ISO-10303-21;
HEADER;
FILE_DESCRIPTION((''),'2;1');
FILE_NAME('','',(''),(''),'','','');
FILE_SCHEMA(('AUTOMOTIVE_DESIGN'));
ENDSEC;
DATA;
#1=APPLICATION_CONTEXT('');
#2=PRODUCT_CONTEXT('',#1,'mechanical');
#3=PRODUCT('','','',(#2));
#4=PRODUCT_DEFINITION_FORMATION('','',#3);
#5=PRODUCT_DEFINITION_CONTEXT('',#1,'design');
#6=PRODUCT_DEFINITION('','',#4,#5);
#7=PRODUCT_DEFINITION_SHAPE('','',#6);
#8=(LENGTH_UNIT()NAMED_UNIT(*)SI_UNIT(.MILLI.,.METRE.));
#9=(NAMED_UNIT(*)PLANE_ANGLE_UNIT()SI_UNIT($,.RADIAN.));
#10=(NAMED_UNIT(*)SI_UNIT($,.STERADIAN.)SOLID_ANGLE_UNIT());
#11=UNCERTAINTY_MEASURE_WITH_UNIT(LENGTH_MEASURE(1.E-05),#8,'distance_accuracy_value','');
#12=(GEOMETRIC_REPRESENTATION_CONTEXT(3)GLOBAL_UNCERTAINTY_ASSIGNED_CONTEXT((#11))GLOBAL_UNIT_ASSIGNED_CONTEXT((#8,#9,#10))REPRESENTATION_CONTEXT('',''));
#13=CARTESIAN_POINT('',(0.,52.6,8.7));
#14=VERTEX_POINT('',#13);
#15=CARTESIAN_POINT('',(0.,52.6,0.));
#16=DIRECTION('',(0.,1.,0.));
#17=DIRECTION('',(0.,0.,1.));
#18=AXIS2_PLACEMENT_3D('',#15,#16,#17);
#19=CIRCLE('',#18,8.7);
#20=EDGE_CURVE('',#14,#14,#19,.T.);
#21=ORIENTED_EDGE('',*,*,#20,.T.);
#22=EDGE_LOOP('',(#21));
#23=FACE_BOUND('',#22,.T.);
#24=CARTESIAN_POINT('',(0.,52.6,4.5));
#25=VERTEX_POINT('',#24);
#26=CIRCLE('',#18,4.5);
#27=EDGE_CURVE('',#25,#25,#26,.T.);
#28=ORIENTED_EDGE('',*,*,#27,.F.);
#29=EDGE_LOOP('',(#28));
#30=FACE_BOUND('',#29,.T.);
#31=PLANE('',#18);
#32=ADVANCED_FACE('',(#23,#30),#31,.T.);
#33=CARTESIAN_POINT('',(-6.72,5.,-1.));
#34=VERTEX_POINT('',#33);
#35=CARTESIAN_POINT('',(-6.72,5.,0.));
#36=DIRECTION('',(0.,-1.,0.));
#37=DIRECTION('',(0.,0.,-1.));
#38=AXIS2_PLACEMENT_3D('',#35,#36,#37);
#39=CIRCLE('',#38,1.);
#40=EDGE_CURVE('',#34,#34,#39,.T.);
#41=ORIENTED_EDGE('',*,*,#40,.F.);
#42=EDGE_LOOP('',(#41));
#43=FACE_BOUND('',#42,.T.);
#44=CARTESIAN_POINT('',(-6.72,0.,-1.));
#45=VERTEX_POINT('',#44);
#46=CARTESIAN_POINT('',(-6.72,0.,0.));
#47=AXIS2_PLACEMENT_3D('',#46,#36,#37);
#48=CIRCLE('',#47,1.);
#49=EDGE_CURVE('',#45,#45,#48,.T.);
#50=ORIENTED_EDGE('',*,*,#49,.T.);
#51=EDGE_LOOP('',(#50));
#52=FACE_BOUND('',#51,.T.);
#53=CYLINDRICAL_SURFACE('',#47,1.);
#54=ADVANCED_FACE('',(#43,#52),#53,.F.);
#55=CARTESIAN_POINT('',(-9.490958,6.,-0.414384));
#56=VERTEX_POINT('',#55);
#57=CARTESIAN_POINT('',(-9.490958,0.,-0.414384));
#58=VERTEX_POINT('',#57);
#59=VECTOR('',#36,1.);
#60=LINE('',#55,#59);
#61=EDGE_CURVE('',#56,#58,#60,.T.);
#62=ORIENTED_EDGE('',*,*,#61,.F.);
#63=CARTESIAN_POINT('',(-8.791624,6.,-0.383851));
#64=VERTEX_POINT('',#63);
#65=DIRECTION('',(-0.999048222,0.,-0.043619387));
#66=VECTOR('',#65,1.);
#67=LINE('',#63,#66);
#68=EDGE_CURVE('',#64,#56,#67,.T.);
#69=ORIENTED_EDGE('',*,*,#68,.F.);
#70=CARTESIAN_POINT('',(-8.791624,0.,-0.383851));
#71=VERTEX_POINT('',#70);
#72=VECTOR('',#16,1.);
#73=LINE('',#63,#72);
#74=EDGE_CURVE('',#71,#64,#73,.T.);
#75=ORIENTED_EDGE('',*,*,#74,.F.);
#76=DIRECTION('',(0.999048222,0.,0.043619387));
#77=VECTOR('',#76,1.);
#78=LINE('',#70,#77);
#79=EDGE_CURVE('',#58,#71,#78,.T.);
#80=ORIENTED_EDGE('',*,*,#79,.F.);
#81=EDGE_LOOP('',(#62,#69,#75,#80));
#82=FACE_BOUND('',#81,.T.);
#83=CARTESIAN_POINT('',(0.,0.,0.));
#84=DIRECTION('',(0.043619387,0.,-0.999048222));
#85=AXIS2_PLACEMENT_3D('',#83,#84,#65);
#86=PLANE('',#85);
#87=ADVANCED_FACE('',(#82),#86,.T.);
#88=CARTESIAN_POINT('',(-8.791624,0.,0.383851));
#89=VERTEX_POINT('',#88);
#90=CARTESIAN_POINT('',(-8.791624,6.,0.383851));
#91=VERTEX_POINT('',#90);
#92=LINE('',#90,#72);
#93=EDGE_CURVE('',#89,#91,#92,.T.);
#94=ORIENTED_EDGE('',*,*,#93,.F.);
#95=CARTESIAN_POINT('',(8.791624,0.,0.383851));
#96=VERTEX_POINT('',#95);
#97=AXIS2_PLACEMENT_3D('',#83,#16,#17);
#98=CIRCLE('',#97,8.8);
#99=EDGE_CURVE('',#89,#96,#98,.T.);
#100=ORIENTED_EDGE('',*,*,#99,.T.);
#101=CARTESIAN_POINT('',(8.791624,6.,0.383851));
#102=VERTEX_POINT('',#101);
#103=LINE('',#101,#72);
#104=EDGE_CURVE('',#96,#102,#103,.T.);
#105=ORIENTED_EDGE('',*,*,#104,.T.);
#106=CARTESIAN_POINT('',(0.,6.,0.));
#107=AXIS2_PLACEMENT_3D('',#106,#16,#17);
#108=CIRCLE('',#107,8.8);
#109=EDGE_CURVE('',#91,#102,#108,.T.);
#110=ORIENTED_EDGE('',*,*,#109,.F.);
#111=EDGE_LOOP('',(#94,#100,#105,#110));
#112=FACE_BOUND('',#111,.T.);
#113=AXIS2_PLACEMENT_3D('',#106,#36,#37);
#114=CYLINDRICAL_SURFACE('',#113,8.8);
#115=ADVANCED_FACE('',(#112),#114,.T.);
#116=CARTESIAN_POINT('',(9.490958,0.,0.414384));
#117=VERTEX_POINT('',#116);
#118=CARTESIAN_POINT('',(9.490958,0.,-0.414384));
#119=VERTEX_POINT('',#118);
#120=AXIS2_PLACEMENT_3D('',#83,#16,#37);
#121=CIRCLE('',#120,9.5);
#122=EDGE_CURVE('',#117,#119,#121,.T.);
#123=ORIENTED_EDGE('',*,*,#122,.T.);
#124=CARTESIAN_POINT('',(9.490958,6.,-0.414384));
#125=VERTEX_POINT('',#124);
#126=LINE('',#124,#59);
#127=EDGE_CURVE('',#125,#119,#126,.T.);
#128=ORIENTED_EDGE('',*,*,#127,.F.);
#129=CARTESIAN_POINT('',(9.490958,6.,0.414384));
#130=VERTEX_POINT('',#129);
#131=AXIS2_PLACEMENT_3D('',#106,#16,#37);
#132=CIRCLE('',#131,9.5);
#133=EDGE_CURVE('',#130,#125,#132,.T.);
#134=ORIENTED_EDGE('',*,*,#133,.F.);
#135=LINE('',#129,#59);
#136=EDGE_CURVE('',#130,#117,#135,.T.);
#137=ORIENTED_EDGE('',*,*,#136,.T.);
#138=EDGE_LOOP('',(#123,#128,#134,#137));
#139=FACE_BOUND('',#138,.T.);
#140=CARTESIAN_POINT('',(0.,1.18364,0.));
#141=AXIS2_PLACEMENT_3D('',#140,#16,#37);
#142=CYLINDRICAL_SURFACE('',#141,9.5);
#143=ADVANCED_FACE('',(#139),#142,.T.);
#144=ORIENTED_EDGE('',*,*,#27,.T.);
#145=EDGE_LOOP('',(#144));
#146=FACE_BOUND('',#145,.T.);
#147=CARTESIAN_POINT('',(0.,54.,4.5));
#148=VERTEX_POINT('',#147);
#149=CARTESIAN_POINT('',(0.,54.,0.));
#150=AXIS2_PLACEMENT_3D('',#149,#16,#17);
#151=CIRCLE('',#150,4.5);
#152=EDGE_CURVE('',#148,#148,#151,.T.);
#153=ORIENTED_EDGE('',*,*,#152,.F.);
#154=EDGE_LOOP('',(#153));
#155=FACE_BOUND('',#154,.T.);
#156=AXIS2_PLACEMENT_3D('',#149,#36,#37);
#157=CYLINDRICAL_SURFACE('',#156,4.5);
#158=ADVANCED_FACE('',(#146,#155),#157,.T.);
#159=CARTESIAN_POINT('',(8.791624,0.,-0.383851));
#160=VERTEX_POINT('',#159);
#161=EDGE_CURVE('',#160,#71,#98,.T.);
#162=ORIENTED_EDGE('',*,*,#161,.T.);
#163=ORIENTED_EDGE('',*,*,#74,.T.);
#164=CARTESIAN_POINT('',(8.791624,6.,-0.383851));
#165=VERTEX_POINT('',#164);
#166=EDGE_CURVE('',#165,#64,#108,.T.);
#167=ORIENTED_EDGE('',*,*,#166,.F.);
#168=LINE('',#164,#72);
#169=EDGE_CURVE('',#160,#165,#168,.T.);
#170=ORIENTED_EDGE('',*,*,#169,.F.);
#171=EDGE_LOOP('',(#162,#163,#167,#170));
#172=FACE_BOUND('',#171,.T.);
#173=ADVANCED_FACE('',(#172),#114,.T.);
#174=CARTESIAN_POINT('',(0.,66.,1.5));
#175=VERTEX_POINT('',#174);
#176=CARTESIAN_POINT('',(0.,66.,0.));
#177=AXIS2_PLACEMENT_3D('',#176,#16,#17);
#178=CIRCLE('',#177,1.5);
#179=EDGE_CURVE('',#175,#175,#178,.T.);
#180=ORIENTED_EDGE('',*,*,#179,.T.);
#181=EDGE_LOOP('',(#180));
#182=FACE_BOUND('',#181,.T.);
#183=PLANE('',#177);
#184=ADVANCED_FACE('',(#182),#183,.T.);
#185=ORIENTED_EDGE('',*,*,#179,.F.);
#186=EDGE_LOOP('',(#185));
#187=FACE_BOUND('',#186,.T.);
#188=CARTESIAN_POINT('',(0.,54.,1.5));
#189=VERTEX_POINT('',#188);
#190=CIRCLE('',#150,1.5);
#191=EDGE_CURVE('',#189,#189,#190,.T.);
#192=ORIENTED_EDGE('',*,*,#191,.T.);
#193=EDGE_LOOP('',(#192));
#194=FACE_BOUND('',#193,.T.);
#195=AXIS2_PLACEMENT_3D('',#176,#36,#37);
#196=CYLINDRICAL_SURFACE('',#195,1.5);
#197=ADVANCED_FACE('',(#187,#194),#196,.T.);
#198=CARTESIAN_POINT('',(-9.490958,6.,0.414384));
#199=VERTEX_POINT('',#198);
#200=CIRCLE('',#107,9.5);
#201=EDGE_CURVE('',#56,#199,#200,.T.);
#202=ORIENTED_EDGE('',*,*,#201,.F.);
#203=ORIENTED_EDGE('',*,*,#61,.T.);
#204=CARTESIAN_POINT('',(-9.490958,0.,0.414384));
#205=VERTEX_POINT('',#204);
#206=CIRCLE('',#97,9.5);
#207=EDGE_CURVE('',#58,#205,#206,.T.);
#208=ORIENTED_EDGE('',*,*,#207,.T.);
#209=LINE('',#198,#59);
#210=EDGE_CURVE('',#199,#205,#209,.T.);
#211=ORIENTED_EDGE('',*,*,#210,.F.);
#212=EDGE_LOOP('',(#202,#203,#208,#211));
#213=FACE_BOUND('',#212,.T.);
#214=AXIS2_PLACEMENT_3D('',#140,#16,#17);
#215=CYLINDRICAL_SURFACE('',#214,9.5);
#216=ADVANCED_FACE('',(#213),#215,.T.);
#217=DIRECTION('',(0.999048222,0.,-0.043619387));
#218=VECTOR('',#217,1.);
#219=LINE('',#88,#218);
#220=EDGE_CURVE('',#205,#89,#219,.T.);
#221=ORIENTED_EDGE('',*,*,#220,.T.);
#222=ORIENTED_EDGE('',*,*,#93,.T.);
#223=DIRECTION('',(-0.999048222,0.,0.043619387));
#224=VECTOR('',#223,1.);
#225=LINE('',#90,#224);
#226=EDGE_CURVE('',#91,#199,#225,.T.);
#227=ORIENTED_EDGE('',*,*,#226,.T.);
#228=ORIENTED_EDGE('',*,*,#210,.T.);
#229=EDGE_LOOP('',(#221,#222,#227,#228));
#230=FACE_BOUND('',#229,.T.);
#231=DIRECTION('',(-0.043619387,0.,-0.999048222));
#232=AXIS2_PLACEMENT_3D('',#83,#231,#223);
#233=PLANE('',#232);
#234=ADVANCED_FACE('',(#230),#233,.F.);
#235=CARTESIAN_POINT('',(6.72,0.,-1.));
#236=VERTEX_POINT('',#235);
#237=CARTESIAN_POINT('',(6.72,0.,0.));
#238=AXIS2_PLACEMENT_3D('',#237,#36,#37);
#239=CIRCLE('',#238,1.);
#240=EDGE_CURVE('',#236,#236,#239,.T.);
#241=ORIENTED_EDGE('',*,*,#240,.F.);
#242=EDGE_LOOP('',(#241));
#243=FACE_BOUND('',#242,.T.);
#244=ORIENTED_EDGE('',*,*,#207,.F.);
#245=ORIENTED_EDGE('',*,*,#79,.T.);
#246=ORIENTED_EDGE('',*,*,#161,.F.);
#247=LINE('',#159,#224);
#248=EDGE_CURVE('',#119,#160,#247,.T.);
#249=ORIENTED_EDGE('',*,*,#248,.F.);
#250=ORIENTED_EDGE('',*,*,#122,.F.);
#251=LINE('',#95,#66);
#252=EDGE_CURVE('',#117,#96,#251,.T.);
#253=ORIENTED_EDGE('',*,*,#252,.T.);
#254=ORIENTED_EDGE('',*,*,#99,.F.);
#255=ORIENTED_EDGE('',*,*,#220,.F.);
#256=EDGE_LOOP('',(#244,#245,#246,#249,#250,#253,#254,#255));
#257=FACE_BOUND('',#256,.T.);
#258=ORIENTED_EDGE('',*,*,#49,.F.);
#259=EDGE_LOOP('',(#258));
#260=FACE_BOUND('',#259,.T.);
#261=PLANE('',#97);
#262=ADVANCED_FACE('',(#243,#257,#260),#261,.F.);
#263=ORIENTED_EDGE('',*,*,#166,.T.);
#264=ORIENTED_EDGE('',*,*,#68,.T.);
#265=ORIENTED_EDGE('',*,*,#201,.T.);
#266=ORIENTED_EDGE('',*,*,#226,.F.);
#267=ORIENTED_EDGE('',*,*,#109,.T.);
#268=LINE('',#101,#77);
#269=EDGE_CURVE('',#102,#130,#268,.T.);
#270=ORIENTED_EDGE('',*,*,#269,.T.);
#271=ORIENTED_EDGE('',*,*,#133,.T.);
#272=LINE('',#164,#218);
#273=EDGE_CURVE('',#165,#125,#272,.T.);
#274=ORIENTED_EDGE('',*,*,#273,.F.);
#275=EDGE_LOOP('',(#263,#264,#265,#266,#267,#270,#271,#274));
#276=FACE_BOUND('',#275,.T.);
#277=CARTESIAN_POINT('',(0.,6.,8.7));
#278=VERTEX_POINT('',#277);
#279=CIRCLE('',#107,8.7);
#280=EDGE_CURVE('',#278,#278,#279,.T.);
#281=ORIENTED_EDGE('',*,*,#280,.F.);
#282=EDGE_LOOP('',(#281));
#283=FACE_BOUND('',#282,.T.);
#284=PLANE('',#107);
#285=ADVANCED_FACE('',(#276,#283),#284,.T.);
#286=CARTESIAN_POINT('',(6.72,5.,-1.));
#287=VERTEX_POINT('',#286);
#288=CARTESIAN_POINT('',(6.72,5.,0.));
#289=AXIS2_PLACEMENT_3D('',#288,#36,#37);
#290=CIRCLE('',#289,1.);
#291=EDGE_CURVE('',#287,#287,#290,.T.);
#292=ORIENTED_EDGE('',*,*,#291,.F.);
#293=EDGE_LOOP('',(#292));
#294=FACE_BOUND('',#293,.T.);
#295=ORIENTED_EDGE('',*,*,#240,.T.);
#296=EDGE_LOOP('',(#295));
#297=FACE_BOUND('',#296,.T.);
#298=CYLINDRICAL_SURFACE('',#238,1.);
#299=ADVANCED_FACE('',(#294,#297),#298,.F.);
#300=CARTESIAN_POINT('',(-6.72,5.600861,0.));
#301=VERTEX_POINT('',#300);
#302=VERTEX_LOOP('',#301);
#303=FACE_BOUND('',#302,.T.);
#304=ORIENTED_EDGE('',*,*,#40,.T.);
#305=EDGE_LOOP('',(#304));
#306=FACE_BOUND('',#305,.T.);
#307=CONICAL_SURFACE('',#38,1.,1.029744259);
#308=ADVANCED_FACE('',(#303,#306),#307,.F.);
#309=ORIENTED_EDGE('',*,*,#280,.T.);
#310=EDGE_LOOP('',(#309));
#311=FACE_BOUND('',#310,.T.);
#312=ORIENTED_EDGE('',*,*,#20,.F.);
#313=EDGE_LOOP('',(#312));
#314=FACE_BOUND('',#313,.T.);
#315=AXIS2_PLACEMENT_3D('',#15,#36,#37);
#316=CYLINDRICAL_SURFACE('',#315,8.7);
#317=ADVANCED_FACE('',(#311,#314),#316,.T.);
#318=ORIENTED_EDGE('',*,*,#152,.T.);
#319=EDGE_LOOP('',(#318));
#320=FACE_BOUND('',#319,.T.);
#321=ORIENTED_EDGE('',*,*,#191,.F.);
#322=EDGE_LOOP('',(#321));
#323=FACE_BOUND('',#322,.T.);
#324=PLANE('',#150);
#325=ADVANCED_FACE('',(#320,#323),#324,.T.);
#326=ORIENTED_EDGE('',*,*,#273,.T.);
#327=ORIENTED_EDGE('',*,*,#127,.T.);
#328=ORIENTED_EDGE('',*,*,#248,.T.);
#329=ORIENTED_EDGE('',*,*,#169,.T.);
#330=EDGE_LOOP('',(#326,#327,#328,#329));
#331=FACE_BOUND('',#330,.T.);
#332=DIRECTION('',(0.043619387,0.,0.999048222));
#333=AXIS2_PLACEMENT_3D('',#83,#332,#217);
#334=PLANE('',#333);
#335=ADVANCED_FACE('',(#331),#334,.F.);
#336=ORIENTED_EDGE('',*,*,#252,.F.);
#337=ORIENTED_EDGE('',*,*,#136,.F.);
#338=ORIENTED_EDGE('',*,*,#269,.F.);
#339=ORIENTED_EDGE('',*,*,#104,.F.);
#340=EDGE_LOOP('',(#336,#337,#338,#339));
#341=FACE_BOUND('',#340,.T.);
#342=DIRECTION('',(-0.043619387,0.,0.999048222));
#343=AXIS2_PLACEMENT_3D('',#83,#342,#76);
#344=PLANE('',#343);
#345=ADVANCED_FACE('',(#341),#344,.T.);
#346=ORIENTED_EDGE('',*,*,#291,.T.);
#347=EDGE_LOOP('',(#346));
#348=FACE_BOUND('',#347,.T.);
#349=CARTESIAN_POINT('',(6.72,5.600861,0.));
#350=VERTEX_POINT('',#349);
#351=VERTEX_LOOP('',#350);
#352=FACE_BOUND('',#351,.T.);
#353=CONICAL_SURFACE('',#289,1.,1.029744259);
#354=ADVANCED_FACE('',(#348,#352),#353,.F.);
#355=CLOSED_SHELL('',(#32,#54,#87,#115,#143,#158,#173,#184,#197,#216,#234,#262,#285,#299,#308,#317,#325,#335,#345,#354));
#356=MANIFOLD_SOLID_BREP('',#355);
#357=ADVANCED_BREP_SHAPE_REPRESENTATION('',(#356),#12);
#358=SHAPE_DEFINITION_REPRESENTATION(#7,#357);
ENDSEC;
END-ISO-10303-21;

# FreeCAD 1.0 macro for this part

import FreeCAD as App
import Part
import Sketcher
from FreeCAD import Vector

doc = App.newDocument("Part")
body = doc.addObject("PartDesign::Body", "Body")

# Sketch on XZ plane
sketch1 = body.newObject("Sketcher::SketchObject", "Sketch")
sketch1.AttachmentSupport = (doc.getObject("XZ_Plane"), [""])
sketch1.MapMode = "FlatFace"
sketch1.addGeometry(Part.Circle(Vector(0, 0, 0), Vector(0, 0, 1), 8.8), False)
sketch1.addConstraint(Sketcher.Constraint("Coincident", 0, 3, -1, 1))
sketch1.addConstraint(Sketcher.Constraint("Diameter", 0, 17.6))
pad1 = body.newObject("PartDesign::Pad", "Pad")
pad1.Profile = sketch1
pad1.Length = 6
pad1.Reversed = True

# Sketch on XY plane
sketch2 = body.newObject("Sketcher::SketchObject", "Sketch001")
sketch2.AttachmentSupport = (doc.getObject("XY_Plane"), [""])
sketch2.MapMode = "FlatFace"
sketch2.addGeometry(Part.LineSegment(Vector(-9.5, 6, 0), Vector(-9.5, 0, 0)), False)
sketch2.addGeometry(Part.LineSegment(Vector(-9.5, 0, 0), Vector(-8.8, 0, 0)), False)
sketch2.addGeometry(Part.LineSegment(Vector(-8.8, 0, 0), Vector(-8.8, 6, 0)), False)
sketch2.addGeometry(Part.LineSegment(Vector(-8.8, 6, 0), Vector(-9.5, 6, 0)), False)
sketch2.addConstraint(Sketcher.Constraint("Coincident", 0, 2, 1, 1))
sketch2.addConstraint(Sketcher.Constraint("Coincident", 1, 2, 2, 1))
sketch2.addConstraint(Sketcher.Constraint("Coincident", 2, 2, 3, 1))
sketch2.addConstraint(Sketcher.Constraint("Coincident", 3, 2, 0, 1))
sketch2.addConstraint(Sketcher.Constraint("Vertical", 0))
sketch2.addConstraint(Sketcher.Constraint("Horizontal", 1))
sketch2.addConstraint(Sketcher.Constraint("Vertical", 2))
sketch2.addConstraint(Sketcher.Constraint("Horizontal", 3))
sketch2.addConstraint(Sketcher.Constraint("PointOnObject", 0, 2, -1))
sketch2.addConstraint(Sketcher.Constraint("DistanceY", 0, 2, 0, 1, 6.0))
sketch2.addConstraint(Sketcher.Constraint("DistanceX", 1, 1, 1, 2, 0.7))
sketch2.addConstraint(Sketcher.Constraint("DistanceX", 0, 2, -1, 1, 9.5))
revolution = body.newObject("PartDesign::Revolution", "Revolution")
revolution.Profile = sketch2
revolution.ReferenceAxis = (sketch2, ["V_Axis"])
revolution.Angle = 2.5
revolution.Reversed = True

# Sketch on XY plane
sketch3 = body.newObject("Sketcher::SketchObject", "Sketch002")
sketch3.AttachmentSupport = (doc.getObject("XY_Plane"), [""])
sketch3.MapMode = "FlatFace"
sketch3.addGeometry(Part.LineSegment(Vector(-9.5, 6, 0), Vector(-9.5, 0, 0)), False)
sketch3.addGeometry(Part.LineSegment(Vector(-9.5, 0, 0), Vector(-8.8, 0, 0)), False)
sketch3.addGeometry(Part.LineSegment(Vector(-8.8, 0, 0), Vector(-8.8, 6, 0)), False)
sketch3.addGeometry(Part.LineSegment(Vector(-8.8, 6, 0), Vector(-9.5, 6, 0)), False)
sketch3.addConstraint(Sketcher.Constraint("Coincident", 0, 2, 1, 1))
sketch3.addConstraint(Sketcher.Constraint("Coincident", 1, 2, 2, 1))
sketch3.addConstraint(Sketcher.Constraint("Coincident", 2, 2, 3, 1))
sketch3.addConstraint(Sketcher.Constraint("Coincident", 3, 2, 0, 1))
sketch3.addConstraint(Sketcher.Constraint("Vertical", 0))
sketch3.addConstraint(Sketcher.Constraint("Horizontal", 1))
sketch3.addConstraint(Sketcher.Constraint("Vertical", 2))
sketch3.addConstraint(Sketcher.Constraint("Horizontal", 3))
sketch3.addConstraint(Sketcher.Constraint("PointOnObject", 0, 2, -1))
sketch3.addConstraint(Sketcher.Constraint("DistanceY", 0, 2, 0, 1, 6.0))
sketch3.addConstraint(Sketcher.Constraint("DistanceX", 1, 1, 1, 2, 0.7))
sketch3.addConstraint(Sketcher.Constraint("DistanceX", 0, 2, -1, 1, 9.5))
revolution2 = body.newObject("PartDesign::Revolution", "Revolution001")
revolution2.Profile = sketch3
revolution2.ReferenceAxis = (sketch3, ["V_Axis"])
revolution2.Angle = 2.5
doc.recompute()

polarpattern = body.newObject("PartDesign::PolarPattern", "PolarPattern")
polarpattern.Originals = [revolution, revolution2]
polarpattern.Axis = (doc.getObject("Y_Axis"), [""])
polarpattern.Angle = 360
polarpattern.Occurrences = 2
body.Tip = polarpattern

# Sketch on XZ plane
sketch4 = body.newObject("Sketcher::SketchObject", "Sketch003")
sketch4.AttachmentSupport = (doc.getObject("XZ_Plane"), [""])
sketch4.MapMode = "FlatFace"
sketch4.AttachmentOffset = App.Placement(Vector(0, 0, -6), App.Rotation())
sketch4.addGeometry(Part.Circle(Vector(0, 0, 0), Vector(0, 0, 1), 8.7), False)
sketch4.addConstraint(Sketcher.Constraint("Coincident", 0, 3, -1, 1))
sketch4.addConstraint(Sketcher.Constraint("Diameter", 0, 17.4))
pad2 = body.newObject("PartDesign::Pad", "Pad001")
pad2.Profile = sketch4
pad2.Length = 46.6
pad2.Reversed = True

# Sketch on XZ plane
sketch5 = body.newObject("Sketcher::SketchObject", "Sketch004")
sketch5.AttachmentSupport = (doc.getObject("XZ_Plane"), [""])
sketch5.MapMode = "FlatFace"
sketch5.AttachmentOffset = App.Placement(Vector(0, 0, -52.6), App.Rotation())
sketch5.addGeometry(Part.Circle(Vector(0, 0, 0), Vector(0, 0, 1), 4.5), False)
sketch5.addConstraint(Sketcher.Constraint("Coincident", 0, 3, -1, 1))
sketch5.addConstraint(Sketcher.Constraint("Diameter", 0, 9.0))
pad3 = body.newObject("PartDesign::Pad", "Pad002")
pad3.Profile = sketch5
pad3.Length = 1.4
pad3.Reversed = True

# Sketch on XZ plane
sketch6 = body.newObject("Sketcher::SketchObject", "Sketch005")
sketch6.AttachmentSupport = (doc.getObject("XZ_Plane"), [""])
sketch6.MapMode = "FlatFace"
sketch6.AttachmentOffset = App.Placement(Vector(0, 0, -54), App.Rotation())
sketch6.addGeometry(Part.Circle(Vector(0, 0, 0), Vector(0, 0, 1), 1.5), False)
sketch6.addConstraint(Sketcher.Constraint("Coincident", 0, 3, -1, 1))
sketch6.addConstraint(Sketcher.Constraint("Diameter", 0, 3.0))
pad4 = body.newObject("PartDesign::Pad", "Pad003")
pad4.Profile = sketch6
pad4.Length = 12
pad4.Reversed = True

# Sketch on XZ plane
sketch7 = body.newObject("Sketcher::SketchObject", "Sketch006")
sketch7.AttachmentSupport = (doc.getObject("XZ_Plane"), [""])
sketch7.MapMode = "FlatFace"
sketch7.addGeometry(Part.Circle(Vector(-6.72, 0, 0), Vector(0, 0, 1), 1), False)
sketch7.addConstraint(Sketcher.Constraint("PointOnObject", 0, 3, -1))
sketch7.addConstraint(Sketcher.Constraint("Diameter", 0, 2.0))
sketch7.addConstraint(Sketcher.Constraint("DistanceX", 0, 3, -1, 1, 6.72))
doc.recompute()
hole = body.newObject("PartDesign::Hole", "Hole")
hole.Profile = sketch7
hole.ThreadType = "None"
hole.Diameter = 2
hole.DepthType = "Dimension"
hole.Depth = 5
hole.DrillPoint = "Angled"
hole.DrillPointAngle = 118

# Sketch on XZ plane
sketch8 = body.newObject("Sketcher::SketchObject", "Sketch007")
sketch8.AttachmentSupport = (doc.getObject("XZ_Plane"), [""])
sketch8.MapMode = "FlatFace"
sketch8.addGeometry(Part.Circle(Vector(6.72, 0, 0), Vector(0, 0, 1), 1), False)
sketch8.addConstraint(Sketcher.Constraint("PointOnObject", 0, 3, -1))
sketch8.addConstraint(Sketcher.Constraint("Diameter", 0, 2.0))
sketch8.addConstraint(Sketcher.Constraint("DistanceX", -1, 1, 0, 3, 6.72))
doc.recompute()
hole2 = body.newObject("PartDesign::Hole", "Hole001")
hole2.Profile = sketch8
hole2.ThreadType = "None"
hole2.Diameter = 2
hole2.DepthType = "Dimension"
hole2.Depth = 5
hole2.DrillPoint = "Angled"
hole2.DrillPointAngle = 118

doc.recompute()
